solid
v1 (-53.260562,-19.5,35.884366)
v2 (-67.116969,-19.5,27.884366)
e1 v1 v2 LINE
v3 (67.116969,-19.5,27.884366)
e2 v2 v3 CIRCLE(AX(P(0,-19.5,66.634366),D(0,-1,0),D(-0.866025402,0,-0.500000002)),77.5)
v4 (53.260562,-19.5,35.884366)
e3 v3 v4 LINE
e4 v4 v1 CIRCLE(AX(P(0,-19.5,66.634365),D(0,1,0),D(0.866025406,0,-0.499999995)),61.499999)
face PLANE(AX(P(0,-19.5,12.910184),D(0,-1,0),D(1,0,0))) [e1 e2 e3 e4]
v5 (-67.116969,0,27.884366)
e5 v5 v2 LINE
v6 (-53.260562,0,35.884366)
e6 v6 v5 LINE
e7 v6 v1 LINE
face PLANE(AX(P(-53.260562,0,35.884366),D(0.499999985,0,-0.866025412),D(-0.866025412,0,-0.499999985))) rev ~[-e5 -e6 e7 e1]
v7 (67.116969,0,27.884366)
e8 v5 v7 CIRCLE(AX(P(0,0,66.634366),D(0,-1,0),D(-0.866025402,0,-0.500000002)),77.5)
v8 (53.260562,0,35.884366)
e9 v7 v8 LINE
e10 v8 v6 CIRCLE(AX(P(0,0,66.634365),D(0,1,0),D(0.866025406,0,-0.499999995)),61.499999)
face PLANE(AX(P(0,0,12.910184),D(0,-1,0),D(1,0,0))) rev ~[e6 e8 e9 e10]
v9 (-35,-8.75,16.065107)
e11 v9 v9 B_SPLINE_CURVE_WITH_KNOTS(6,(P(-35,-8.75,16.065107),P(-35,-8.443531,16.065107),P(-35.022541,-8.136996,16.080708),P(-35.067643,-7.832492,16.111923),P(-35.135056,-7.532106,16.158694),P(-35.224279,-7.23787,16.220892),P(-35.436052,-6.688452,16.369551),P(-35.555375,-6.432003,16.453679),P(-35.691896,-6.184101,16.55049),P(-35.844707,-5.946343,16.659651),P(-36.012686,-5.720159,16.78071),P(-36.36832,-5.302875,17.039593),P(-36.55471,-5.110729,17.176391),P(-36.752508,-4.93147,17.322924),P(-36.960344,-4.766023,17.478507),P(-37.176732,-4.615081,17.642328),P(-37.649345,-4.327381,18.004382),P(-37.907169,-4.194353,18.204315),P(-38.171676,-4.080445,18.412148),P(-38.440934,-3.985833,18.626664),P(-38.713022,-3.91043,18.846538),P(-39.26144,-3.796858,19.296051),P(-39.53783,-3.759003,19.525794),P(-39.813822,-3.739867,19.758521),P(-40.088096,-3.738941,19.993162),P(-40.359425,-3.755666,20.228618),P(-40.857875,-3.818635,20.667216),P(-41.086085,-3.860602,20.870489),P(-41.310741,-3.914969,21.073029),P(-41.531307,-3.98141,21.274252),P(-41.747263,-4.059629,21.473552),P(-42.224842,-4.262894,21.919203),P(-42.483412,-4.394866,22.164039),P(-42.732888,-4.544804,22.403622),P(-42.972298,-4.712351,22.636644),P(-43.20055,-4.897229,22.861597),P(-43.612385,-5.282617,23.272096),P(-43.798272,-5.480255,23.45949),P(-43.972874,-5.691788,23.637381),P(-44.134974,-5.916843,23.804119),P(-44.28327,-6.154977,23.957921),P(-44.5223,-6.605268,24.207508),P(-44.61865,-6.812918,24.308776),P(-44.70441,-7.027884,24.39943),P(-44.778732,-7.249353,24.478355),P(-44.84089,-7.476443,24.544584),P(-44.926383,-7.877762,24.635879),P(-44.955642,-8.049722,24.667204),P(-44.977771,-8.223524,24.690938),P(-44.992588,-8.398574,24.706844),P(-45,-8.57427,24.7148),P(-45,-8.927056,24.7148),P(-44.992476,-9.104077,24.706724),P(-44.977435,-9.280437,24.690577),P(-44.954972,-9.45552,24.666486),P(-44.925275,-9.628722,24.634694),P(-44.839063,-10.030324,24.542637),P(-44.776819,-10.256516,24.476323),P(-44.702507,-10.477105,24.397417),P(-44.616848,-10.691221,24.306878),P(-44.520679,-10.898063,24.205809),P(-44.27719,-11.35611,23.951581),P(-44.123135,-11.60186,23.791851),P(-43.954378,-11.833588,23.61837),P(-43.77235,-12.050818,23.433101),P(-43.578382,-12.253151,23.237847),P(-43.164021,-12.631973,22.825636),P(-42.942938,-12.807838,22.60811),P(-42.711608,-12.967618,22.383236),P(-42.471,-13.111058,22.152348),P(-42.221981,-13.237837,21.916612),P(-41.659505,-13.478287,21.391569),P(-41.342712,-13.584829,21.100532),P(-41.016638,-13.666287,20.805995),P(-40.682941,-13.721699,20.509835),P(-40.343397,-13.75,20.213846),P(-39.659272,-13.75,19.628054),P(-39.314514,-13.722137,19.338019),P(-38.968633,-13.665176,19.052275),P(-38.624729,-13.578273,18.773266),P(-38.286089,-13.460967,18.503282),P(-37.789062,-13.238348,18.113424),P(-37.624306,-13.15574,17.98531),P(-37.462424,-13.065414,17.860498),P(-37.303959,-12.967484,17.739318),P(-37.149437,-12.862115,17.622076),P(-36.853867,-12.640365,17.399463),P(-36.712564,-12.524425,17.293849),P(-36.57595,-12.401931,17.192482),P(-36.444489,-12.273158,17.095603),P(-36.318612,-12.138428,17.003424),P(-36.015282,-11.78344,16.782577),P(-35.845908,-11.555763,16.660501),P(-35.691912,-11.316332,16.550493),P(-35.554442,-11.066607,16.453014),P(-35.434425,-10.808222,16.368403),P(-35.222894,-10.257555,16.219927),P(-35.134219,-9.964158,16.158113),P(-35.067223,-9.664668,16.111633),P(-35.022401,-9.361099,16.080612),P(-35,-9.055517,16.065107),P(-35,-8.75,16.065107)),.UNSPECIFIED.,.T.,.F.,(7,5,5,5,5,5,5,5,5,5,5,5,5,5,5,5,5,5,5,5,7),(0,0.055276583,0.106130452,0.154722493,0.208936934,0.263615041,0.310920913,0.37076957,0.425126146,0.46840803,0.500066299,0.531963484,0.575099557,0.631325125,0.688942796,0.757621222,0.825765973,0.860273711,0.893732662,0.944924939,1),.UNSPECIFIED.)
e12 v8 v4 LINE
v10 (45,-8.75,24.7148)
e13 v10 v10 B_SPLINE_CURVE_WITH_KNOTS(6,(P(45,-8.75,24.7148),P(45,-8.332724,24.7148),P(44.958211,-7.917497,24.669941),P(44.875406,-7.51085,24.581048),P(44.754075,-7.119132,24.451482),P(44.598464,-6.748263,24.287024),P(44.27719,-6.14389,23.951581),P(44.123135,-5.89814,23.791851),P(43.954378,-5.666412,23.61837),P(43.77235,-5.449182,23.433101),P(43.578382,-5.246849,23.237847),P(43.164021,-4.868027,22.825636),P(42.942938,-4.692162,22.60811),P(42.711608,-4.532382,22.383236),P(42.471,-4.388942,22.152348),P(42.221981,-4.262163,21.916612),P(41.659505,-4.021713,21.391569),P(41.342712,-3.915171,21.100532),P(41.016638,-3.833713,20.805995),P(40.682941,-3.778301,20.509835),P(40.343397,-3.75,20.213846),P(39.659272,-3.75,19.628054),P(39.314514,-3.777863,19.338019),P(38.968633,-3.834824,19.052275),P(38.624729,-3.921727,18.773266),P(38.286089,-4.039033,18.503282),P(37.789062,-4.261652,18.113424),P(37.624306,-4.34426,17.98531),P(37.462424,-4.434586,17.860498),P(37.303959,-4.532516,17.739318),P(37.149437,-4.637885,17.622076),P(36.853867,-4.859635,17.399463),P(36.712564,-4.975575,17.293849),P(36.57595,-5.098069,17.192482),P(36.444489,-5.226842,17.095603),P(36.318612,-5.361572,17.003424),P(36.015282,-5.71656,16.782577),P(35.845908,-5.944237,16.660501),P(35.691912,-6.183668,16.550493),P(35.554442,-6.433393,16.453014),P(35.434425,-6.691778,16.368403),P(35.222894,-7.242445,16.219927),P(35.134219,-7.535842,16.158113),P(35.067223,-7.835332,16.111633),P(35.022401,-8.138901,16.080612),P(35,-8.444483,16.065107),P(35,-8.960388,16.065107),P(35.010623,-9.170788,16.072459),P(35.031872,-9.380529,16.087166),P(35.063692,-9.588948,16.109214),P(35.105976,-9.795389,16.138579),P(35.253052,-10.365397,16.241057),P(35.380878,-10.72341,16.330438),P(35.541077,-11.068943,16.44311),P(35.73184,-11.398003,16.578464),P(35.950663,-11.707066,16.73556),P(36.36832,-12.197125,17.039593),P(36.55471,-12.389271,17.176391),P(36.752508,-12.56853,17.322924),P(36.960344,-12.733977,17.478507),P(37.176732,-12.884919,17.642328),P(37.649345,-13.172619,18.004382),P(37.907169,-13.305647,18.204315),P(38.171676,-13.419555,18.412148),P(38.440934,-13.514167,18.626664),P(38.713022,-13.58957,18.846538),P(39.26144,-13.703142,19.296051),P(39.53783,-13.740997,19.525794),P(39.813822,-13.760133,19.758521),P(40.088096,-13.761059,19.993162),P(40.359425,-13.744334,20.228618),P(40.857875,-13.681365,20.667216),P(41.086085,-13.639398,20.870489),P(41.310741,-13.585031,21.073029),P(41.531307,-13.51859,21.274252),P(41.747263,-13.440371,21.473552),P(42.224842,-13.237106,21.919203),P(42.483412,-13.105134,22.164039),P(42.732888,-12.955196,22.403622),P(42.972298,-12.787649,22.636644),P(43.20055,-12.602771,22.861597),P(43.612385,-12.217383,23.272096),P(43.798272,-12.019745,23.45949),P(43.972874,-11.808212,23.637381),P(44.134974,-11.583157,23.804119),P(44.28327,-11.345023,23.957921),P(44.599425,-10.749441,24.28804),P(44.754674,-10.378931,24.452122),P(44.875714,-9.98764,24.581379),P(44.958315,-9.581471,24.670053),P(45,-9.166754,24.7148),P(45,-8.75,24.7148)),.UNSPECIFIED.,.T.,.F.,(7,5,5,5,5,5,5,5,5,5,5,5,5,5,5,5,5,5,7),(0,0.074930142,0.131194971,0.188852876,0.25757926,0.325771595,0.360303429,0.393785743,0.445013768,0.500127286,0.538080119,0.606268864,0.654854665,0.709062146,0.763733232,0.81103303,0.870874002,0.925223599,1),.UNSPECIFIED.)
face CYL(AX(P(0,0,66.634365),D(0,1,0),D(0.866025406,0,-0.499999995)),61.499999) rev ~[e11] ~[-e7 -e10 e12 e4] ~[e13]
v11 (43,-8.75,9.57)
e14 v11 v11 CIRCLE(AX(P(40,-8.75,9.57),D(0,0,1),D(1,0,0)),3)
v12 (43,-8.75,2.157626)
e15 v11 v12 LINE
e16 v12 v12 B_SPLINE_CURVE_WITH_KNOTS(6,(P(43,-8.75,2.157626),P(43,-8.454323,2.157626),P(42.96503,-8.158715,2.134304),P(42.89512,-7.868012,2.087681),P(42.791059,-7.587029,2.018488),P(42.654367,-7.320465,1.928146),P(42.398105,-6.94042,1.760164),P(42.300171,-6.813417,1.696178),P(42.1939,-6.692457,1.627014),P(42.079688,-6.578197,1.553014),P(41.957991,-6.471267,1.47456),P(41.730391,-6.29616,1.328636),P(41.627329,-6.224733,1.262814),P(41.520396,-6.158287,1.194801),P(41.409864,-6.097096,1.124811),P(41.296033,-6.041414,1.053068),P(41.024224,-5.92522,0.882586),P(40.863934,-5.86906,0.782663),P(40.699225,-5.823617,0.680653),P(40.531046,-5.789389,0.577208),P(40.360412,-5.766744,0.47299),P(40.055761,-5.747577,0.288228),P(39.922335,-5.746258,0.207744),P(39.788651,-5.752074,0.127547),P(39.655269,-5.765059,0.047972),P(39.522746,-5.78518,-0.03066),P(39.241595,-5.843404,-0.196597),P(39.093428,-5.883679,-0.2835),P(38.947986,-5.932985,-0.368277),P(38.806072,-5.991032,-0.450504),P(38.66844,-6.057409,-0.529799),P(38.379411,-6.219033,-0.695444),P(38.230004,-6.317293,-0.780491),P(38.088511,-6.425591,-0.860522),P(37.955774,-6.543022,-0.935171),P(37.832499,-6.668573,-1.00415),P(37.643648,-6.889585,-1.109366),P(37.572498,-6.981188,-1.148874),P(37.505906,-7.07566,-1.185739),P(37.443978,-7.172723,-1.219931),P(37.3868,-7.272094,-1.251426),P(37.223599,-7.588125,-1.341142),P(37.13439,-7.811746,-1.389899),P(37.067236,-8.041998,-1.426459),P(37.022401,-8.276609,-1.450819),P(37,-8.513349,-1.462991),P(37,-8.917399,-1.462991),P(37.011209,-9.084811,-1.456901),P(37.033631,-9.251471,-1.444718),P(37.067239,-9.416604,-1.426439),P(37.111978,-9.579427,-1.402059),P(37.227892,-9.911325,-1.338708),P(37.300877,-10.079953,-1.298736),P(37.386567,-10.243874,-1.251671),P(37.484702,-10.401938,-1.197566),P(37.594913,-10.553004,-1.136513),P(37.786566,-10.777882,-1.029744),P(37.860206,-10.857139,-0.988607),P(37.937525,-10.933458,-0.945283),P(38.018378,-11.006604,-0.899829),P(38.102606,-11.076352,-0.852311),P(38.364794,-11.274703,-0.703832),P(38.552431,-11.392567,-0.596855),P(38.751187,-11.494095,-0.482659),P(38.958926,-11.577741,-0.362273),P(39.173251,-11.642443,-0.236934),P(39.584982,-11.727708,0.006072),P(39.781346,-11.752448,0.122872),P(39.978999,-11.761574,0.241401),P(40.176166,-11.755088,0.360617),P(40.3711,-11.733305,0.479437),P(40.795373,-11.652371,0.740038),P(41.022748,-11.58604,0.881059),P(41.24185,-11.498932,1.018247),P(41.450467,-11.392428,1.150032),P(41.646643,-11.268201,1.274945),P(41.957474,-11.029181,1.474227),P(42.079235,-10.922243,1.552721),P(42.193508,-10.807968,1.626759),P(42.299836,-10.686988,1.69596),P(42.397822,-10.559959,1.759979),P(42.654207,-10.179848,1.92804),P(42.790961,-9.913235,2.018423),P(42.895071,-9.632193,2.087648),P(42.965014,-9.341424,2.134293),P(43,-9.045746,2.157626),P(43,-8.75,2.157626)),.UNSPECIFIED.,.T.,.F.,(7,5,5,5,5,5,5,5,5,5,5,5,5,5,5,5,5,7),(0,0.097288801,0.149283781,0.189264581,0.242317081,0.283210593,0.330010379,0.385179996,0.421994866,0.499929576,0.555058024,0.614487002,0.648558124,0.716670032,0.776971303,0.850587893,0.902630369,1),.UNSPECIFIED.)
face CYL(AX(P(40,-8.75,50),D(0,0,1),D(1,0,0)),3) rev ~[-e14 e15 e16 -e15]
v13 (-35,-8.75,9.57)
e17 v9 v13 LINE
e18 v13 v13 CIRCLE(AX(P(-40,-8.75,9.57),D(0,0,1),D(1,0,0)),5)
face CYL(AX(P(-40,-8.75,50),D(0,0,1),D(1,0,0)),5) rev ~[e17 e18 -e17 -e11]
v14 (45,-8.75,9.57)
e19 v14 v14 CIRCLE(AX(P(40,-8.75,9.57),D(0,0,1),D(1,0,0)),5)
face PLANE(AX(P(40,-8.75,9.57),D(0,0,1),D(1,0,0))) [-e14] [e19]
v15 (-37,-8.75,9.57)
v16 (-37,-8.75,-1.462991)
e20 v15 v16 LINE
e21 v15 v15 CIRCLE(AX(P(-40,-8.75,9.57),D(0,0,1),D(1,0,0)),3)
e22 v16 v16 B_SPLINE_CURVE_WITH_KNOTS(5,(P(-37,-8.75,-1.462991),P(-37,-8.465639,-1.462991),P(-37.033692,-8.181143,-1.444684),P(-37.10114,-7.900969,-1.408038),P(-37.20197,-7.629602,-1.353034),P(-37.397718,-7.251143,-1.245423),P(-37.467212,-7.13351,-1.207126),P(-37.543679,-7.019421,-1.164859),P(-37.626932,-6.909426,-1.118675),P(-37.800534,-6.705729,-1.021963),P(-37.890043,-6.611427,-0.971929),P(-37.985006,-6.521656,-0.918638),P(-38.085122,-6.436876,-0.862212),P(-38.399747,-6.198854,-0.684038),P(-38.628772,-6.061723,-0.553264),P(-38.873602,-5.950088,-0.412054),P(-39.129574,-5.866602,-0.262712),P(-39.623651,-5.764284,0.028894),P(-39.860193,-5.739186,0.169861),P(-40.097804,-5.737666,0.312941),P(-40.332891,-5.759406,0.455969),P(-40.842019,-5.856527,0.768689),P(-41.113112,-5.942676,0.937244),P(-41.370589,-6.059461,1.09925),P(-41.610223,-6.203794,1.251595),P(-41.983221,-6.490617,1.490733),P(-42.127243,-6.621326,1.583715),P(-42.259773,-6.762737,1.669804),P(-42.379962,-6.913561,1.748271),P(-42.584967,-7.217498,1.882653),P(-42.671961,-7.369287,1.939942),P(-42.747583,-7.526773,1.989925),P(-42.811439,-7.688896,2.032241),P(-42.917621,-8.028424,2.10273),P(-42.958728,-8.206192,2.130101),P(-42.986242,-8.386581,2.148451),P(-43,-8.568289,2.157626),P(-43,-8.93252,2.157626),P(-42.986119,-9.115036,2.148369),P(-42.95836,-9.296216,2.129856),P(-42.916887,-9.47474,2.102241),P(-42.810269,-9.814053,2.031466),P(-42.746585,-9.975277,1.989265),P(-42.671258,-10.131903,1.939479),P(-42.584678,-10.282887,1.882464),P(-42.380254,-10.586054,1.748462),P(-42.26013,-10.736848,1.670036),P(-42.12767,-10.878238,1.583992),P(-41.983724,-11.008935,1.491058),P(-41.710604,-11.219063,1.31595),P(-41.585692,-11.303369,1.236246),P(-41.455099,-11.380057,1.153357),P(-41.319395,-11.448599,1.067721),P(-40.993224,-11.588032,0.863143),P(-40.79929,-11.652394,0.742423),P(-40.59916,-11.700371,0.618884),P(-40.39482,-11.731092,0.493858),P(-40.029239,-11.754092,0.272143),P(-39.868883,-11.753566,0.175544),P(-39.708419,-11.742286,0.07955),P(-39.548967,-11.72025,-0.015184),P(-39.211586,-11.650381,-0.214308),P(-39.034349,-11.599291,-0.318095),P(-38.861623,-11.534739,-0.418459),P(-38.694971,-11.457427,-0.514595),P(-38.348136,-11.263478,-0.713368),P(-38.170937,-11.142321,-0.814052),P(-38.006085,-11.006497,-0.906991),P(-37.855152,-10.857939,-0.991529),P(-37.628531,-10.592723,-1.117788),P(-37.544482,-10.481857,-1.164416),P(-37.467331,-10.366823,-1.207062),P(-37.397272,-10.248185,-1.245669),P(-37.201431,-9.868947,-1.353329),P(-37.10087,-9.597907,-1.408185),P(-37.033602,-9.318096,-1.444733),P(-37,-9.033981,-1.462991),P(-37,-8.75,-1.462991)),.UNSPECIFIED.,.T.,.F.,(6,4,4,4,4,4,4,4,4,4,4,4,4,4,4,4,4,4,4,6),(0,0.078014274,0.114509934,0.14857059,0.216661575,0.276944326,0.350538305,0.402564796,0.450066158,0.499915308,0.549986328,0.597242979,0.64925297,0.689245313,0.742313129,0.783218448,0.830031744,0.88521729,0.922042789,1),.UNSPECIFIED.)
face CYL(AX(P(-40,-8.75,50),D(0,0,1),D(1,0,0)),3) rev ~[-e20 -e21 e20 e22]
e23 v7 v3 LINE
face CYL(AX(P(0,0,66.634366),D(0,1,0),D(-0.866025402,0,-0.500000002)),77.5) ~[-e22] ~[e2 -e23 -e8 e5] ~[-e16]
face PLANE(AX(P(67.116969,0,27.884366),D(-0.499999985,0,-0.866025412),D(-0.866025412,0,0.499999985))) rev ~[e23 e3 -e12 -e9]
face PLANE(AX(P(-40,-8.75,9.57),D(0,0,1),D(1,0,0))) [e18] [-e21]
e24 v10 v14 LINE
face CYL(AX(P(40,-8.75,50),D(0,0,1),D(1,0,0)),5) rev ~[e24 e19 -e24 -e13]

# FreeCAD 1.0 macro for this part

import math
import FreeCAD as App
import Part
import Sketcher
from FreeCAD import Vector
Q = App.Units.Quantity

doc = App.newDocument("Part")
body = doc.addObject("PartDesign::Body", "Body")

# Sketch on XZ plane
sketch1 = body.newObject("Sketcher::SketchObject", "Sketch")
sketch1.AttachmentSupport = (doc.getObject("XZ_Plane"), [""])
sketch1.MapMode = "FlatFace"
sketch1.addGeometry(Part.LineSegment(Vector(-53.260562, 35.884366, 0), Vector(-67.116969, 27.884366, 0)), False)
sketch1.addGeometry(Part.ArcOfCircle(Part.Circle(Vector(0, 66.634366, 0), Vector(0, 0, 1), 77.5), math.radians(-150), math.radians(-30)), False)
sketch1.addGeometry(Part.LineSegment(Vector(67.116969, 27.884366, 0), Vector(53.260562, 35.884366, 0)), False)
sketch1.addGeometry(Part.ArcOfCircle(Part.Circle(Vector(0, 66.634365, 0), Vector(0, 0, 1), 61.499999), math.radians(-150), math.radians(-30)), False)
sketch1.addConstraint(Sketcher.Constraint("Coincident", 0, 2, 1, 1))
sketch1.addConstraint(Sketcher.Constraint("Coincident", 1, 2, 2, 1))
sketch1.addConstraint(Sketcher.Constraint("Coincident", 2, 2, 3, 2))
sketch1.addConstraint(Sketcher.Constraint("Coincident", 3, 1, 0, 1))
sketch1.addConstraint(Sketcher.Constraint("Coincident", 3, 3, 1, 3))
sketch1.addConstraint(Sketcher.Constraint("Symmetric", 0, 2, 1, 2, -2))
sketch1.addConstraint(Sketcher.Constraint("Horizontal", 2, 2, 3, 1))
sketch1.addConstraint(Sketcher.Constraint("Radius", 1, Q("77.5 mm")))
sketch1.addConstraint(Sketcher.Constraint("Radius", 3, Q("61.499999 mm")))
sketch1.addConstraint(Sketcher.Constraint("Angle", 0, Q("-150.000001 deg")))
sketch1.addConstraint(Sketcher.Constraint("DistanceY", 0, 2, 3, 3, Q("38.749999 mm")))
sketch1.addConstraint(Sketcher.Constraint("DistanceY", -1, 1, 1, 3, Q("66.634366 mm")))
pad1 = body.newObject("PartDesign::Pad", "Pad")
pad1.Profile = sketch1
pad1.Length = 19.5

# Sketch on XY plane
sketch2 = body.newObject("Sketcher::SketchObject", "Sketch001")
sketch2.AttachmentSupport = (doc.getObject("XY_Plane"), [""])
sketch2.MapMode = "FlatFace"
sketch2.AttachmentOffset = App.Placement(Vector(0, 0, 50), App.Rotation())
sketch2.addGeometry(Part.Circle(Vector(-40, -8.75, 0), Vector(0, 0, 1), 3), False)
sketch2.addGeometry(Part.Circle(Vector(40, -8.75, 0), Vector(0, 0, 1), 3), False)
sketch2.addConstraint(Sketcher.Constraint("Equal", 0, 1))
sketch2.addConstraint(Sketcher.Constraint("Symmetric", 0, 3, 1, 3, -2))
sketch2.addConstraint(Sketcher.Constraint("Diameter", 0, Q("6 mm")))
sketch2.addConstraint(Sketcher.Constraint("DistanceX", 0, 3, -1, 1, Q("40 mm")))
sketch2.addConstraint(Sketcher.Constraint("DistanceY", 0, 3, -1, 1, Q("8.75 mm")))
pocket1 = body.newObject("PartDesign::Pocket", "Pocket")
pocket1.Profile = sketch2
pocket1.Type = "ThroughAll"

# Sketch on XY plane
sketch3 = body.newObject("Sketcher::SketchObject", "Sketch002")
sketch3.AttachmentSupport = (doc.getObject("XY_Plane"), [""])
sketch3.MapMode = "FlatFace"
sketch3.AttachmentOffset = App.Placement(Vector(0, 0, 50), App.Rotation())
sketch3.addGeometry(Part.Circle(Vector(40, -8.75, 0), Vector(0, 0, 1), 5), False)
sketch3.addGeometry(Part.Circle(Vector(40, -8.75, 0), Vector(0, 0, 1), 3), False)
sketch3.addGeometry(Part.Circle(Vector(-40, -8.75, 0), Vector(0, 0, 1), 5), False)
sketch3.addGeometry(Part.Circle(Vector(-40, -8.75, 0), Vector(0, 0, 1), 3), False)
sketch3.addConstraint(Sketcher.Constraint("Coincident", 1, 3, 0, 3))
sketch3.addConstraint(Sketcher.Constraint("Coincident", 3, 3, 2, 3))
sketch3.addConstraint(Sketcher.Constraint("Equal", 0, 2))
sketch3.addConstraint(Sketcher.Constraint("Equal", 1, 3))
sketch3.addConstraint(Sketcher.Constraint("Symmetric", 0, 3, 2, 3, -2))
sketch3.addConstraint(Sketcher.Constraint("Diameter", 0, Q("10 mm")))
sketch3.addConstraint(Sketcher.Constraint("Diameter", 1, Q("6 mm")))
sketch3.addConstraint(Sketcher.Constraint("DistanceX", -1, 1, 0, 3, Q("40 mm")))
sketch3.addConstraint(Sketcher.Constraint("DistanceY", 0, 3, -1, 1, Q("8.75 mm")))
pocket2 = body.newObject("PartDesign::Pocket", "Pocket001")
pocket2.Profile = sketch3
pocket2.Length = 40.43

doc.recompute()
